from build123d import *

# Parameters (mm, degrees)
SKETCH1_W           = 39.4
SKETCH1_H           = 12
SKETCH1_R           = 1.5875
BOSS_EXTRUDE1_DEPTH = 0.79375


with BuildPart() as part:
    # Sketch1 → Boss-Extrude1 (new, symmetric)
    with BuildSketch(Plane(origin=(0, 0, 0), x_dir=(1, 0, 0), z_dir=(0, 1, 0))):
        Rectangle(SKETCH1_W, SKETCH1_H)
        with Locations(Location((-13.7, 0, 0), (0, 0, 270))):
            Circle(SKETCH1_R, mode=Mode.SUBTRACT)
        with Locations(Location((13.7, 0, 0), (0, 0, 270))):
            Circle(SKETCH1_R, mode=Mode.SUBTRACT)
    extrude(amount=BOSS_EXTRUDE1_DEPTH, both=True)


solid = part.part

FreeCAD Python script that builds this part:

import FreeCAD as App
import Part
import Sketcher
from FreeCAD import Vector
Q = App.Units.Quantity


def add_polygon(sketch, points):
    """Adds a closed chain of lines whose ends are joined by coincident constraints."""
    first, n = sketch.GeometryCount, len(points)
    for a, b in zip(points, points[1:] + points[:1]):
        sketch.addGeometry(Part.LineSegment(App.Vector(*a, 0), App.Vector(*b, 0)), False)
    for i in range(n):
        sketch.addConstraint(Sketcher.Constraint("Coincident", first + i, 2, first + (i + 1) % n, 1))

doc = App.newDocument("Part")
body = doc.addObject("PartDesign::Body", "Body")

# Sketch on XZ plane
sketch1 = body.newObject("Sketcher::SketchObject", "Sketch")
sketch1.AttachmentSupport = (doc.getObject("XZ_Plane"), [""])
sketch1.MapMode = "FlatFace"
add_polygon(sketch1, [(-19.7, -6), (-19.7, 6), (19.7, 6), (19.7, -6)])  # lines 0-3
sketch1.addGeometry(Part.Circle(Vector(-13.7, 0, 0), Vector(0, 0, 1), 1.6), False)  # 4
sketch1.addGeometry(Part.Circle(Vector(13.7, 0, 0), Vector(0, 0, 1), 1.6), False)  # 5
sketch1.addConstraint([
    Sketcher.Constraint("Vertical", 0),
    Sketcher.Constraint("Horizontal", 1),
    Sketcher.Constraint("Vertical", 2),
    Sketcher.Constraint("Horizontal", 3),
    Sketcher.Constraint("Equal", 4, 5),
    Sketcher.Constraint("Symmetric", 4, 3, 5, 3, -1, 1),
    Sketcher.Constraint("Symmetric", 0, 2, 2, 2, -1, 1),
    Sketcher.Constraint("PointOnObject", 4, 3, -1),
    Sketcher.Constraint("DistanceY", 0, 1, 0, 2, Q("12 mm")),
    Sketcher.Constraint("Diameter", 4, Q("3.175 mm")),
    Sketcher.Constraint("DistanceX", 1, 1, 1, 2, Q("39.4 mm")),
    Sketcher.Constraint("DistanceX", 0, 2, 4, 3, Q("6 mm")),
])
pad1 = body.newObject("PartDesign::Pad", "Pad")
pad1.Profile = sketch1
pad1.Length = 1.5875
pad1.Midplane = True

doc.recompute()
